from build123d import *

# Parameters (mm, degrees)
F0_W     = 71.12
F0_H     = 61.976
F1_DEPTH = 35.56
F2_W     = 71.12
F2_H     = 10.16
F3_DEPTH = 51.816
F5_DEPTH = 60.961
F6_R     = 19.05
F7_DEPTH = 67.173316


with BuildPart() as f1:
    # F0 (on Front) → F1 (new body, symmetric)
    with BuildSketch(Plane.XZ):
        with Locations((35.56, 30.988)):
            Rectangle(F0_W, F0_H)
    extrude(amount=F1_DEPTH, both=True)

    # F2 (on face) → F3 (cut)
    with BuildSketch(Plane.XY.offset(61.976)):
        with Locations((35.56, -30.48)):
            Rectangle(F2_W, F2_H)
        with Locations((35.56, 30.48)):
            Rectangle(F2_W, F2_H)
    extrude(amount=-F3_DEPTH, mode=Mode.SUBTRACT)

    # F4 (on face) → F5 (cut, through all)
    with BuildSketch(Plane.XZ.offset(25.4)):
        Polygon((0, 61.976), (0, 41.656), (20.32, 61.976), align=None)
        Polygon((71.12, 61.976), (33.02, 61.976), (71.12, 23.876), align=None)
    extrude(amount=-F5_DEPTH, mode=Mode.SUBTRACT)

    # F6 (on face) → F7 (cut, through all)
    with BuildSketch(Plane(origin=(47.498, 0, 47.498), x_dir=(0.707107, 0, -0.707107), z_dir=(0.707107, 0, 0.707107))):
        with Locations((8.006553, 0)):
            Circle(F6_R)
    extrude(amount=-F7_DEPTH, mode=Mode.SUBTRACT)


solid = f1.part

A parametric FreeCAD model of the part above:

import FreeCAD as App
import Part
import Sketcher
Q = App.Units.Quantity

doc = App.newDocument("Part")
params = doc.addObject("Spreadsheet::Sheet", "Params")
for row, (alias, value) in enumerate([
    ("sketch1_width", "2.8 in"),
    ("sketch1_height", "2.44 in"),
    ("pad1_length", "2.8 in"),
    ("sketch2_width", "2.8 in"),
    ("sketch2_height", "0.4 in"),
    ("pocket1_length", "2.04 in"),
    ("sketch3_width", "0.8 in"),
    ("sketch3_width2", "1.5 in"),
    ("sketch4_diameter", "1.5 in"),
], start=1):
    params.set(f"A{row}", alias)
    params.set(f"B{row}", "=" + value)
    params.setAlias(f"B{row}", alias)

body = doc.addObject("PartDesign::Body", "Body")

# Sketch on XZ plane
sketch1 = doc.addObject("Sketcher::SketchObject", "Sketch")
body.addObject(sketch1)
sketch1.AttachmentSupport = (doc.XZ_Plane, [""])
sketch1.MapMode = "FlatFace"
sketch1.addGeometry([
    Part.LineSegment(App.Vector(0, 61.976, 0), App.Vector(0, 0, 0)),
    Part.LineSegment(App.Vector(0, 0, 0), App.Vector(71.12, 0, 0)),
    Part.LineSegment(App.Vector(71.12, 0, 0), App.Vector(71.12, 61.976, 0)),
    Part.LineSegment(App.Vector(71.12, 61.976, 0), App.Vector(0, 61.976, 0)),
], False)
sketch1.addConstraint([
    Sketcher.Constraint("Coincident", 0, 2, 1, 1),
    Sketcher.Constraint("Coincident", 1, 2, 2, 1),
    Sketcher.Constraint("Coincident", 2, 2, 3, 1),
    Sketcher.Constraint("Coincident", 3, 2, 0, 1),
    Sketcher.Constraint("Vertical", 0),
    Sketcher.Constraint("Horizontal", 1),
    Sketcher.Constraint("Vertical", 2),
    Sketcher.Constraint("Horizontal", 3),
    Sketcher.Constraint("Coincident", 0, 2, -1, 1),
    Sketcher.Constraint("DistanceX", 1, 1, 1, 2, Q("2.8 in")),
    Sketcher.Constraint("DistanceY", 0, 2, 0, 1, Q("2.44 in")),
])
sketch1.setExpression("Constraints[9]", "Params.sketch1_width")
sketch1.setExpression("Constraints[10]", "Params.sketch1_height")
pad1 = doc.addObject("PartDesign::Pad", "Pad")
body.addObject(pad1)
pad1.Profile = sketch1
pad1.setExpression("Length", "Params.pad1_length")
pad1.Midplane = True

# Sketch on XY plane
sketch2 = doc.addObject("Sketcher::SketchObject", "Sketch001")
body.addObject(sketch2)
sketch2.AttachmentSupport = (doc.XY_Plane, [""])
sketch2.MapMode = "FlatFace"
sketch2.AttachmentOffset = App.Placement(App.Vector(0, 0, 2.44 * 25.4), App.Rotation())
sketch2.addGeometry([
    Part.LineSegment(App.Vector(0, -25.4, 0), App.Vector(0, -35.56, 0)),  # 0
    Part.LineSegment(App.Vector(0, -35.56, 0), App.Vector(71.12, -35.56, 0)),  # 1
    Part.LineSegment(App.Vector(71.12, -35.56, 0), App.Vector(71.12, -25.4, 0)),  # 2
    Part.LineSegment(App.Vector(71.12, -25.4, 0), App.Vector(0, -25.4, 0)),  # 3
    Part.LineSegment(App.Vector(0, 35.56, 0), App.Vector(0, 25.4, 0)),  # 4
    Part.LineSegment(App.Vector(0, 25.4, 0), App.Vector(71.12, 25.4, 0)),  # 5
    Part.LineSegment(App.Vector(71.12, 25.4, 0), App.Vector(71.12, 35.56, 0)),  # 6
    Part.LineSegment(App.Vector(71.12, 35.56, 0), App.Vector(0, 35.56, 0)),  # 7
], False)
sketch2.addConstraint([
    Sketcher.Constraint("Coincident", 0, 2, 1, 1),
    Sketcher.Constraint("Coincident", 1, 2, 2, 1),
    Sketcher.Constraint("Coincident", 2, 2, 3, 1),
    Sketcher.Constraint("Coincident", 3, 2, 0, 1),
    Sketcher.Constraint("Coincident", 4, 2, 5, 1),
    Sketcher.Constraint("Coincident", 5, 2, 6, 1),
    Sketcher.Constraint("Coincident", 6, 2, 7, 1),
    Sketcher.Constraint("Coincident", 7, 2, 4, 1),
    Sketcher.Constraint("Vertical", 0),
    Sketcher.Constraint("Horizontal", 1),
    Sketcher.Constraint("Vertical", 2),
    Sketcher.Constraint("Horizontal", 3),
    Sketcher.Constraint("Vertical", 4),
    Sketcher.Constraint("Horizontal", 5),
    Sketcher.Constraint("Vertical", 6),
    Sketcher.Constraint("Horizontal", 7),
    Sketcher.Constraint("Symmetric", 3, 2, 4, 2, -1, 1),
    Sketcher.Constraint("Symmetric", 1, 2, 6, 2, -1),
    Sketcher.Constraint("PointOnObject", 0, 2, -2),
    Sketcher.Constraint("DistanceX", 1, 1, 1, 2, Q("2.8 in")),
    Sketcher.Constraint("DistanceY", 0, 2, 0, 1, Q("0.4 in")),
    Sketcher.Constraint("DistanceY", 2, 2, -1, 1, Q("1 in")),
])
sketch2.setExpression("Constraints[19]", "Params.sketch2_width")
sketch2.setExpression("Constraints[20]", "Params.sketch2_height")
pocket1 = doc.addObject("PartDesign::Pocket", "Pocket")
body.addObject(pocket1)
pocket1.Profile = sketch2
pocket1.setExpression("Length", "Params.pocket1_length")

# Sketch on XZ plane
sketch3 = doc.addObject("Sketcher::SketchObject", "Sketch002")
body.addObject(sketch3)
sketch3.AttachmentSupport = (doc.XZ_Plane, [""])
sketch3.MapMode = "FlatFace"
sketch3.AttachmentOffset = App.Placement(App.Vector(0, 0, 1 * 25.4), App.Rotation())
sketch3.addGeometry([
    Part.LineSegment(App.Vector(0, 61.976, 0), App.Vector(0, 41.656, 0)),  # 0
    Part.LineSegment(App.Vector(0, 41.656, 0), App.Vector(20.32, 61.976, 0)),  # 1
    Part.LineSegment(App.Vector(20.32, 61.976, 0), App.Vector(0, 61.976, 0)),  # 2
    Part.LineSegment(App.Vector(71.12, 61.976, 0), App.Vector(33.02, 61.976, 0)),  # 3
    Part.LineSegment(App.Vector(33.02, 61.976, 0), App.Vector(71.12, 23.876, 0)),  # 4
    Part.LineSegment(App.Vector(71.12, 23.876, 0), App.Vector(71.12, 61.976, 0)),  # 5
], False)
sketch3.addConstraint([
    Sketcher.Constraint("Coincident", 0, 2, 1, 1),
    Sketcher.Constraint("Coincident", 1, 2, 2, 1),
    Sketcher.Constraint("Coincident", 2, 2, 0, 1),
    Sketcher.Constraint("Coincident", 3, 2, 4, 1),
    Sketcher.Constraint("Coincident", 4, 2, 5, 1),
    Sketcher.Constraint("Coincident", 5, 2, 3, 1),
    Sketcher.Constraint("Vertical", 0),
    Sketcher.Constraint("Horizontal", 2),
    Sketcher.Constraint("Horizontal", 3),
    Sketcher.Constraint("Vertical", 5),
    Sketcher.Constraint("PointOnObject", 0, 2, -2),
    Sketcher.Constraint("Perpendicular", 1, 4),
    Sketcher.Constraint("Horizontal", 2, 2, 3, 2),
    Sketcher.Constraint("Equal", 2, 0),
    Sketcher.Constraint("DistanceX", 2, 2, 2, 1, Q("0.8 in")),
    Sketcher.Constraint("DistanceX", 3, 2, 3, 1, Q("1.5 in")),
    Sketcher.Constraint("DistanceX", 1, 2, 4, 2, Q("2 in")),
    Sketcher.Constraint("DistanceY", -1, 1, 0, 2, Q("1.64 in")),
])
sketch3.setExpression("Constraints[14]", "Params.sketch3_width")
sketch3.setExpression("Constraints[15]", "Params.sketch3_width2")
pocket2 = doc.addObject("PartDesign::Pocket", "Pocket001")
body.addObject(pocket2)
pocket2.Profile = sketch3
pocket2.Type = "ThroughAll"

# Sketch on an angled plane
sketch4 = doc.addObject("Sketcher::SketchObject", "Sketch003")
body.addObject(sketch4)
sketch4.Placement = App.Placement(App.Vector(47.498, 0, 47.498), App.Rotation(App.Vector(0.707106781, 0, -0.707106781), App.Vector(0, 0.999999999, 0), App.Vector(0.707106781, 0, 0.707106781), "ZXY"))
sketch4.addGeometry(Part.Circle(App.Vector(8.006553, 0, 0), App.Vector(0, 0, 1), 19.05), False)
sketch4.addConstraint([
    Sketcher.Constraint("PointOnObject", 0, 3, -1),
    Sketcher.Constraint("Diameter", 0, Q("1.5 in")),
    Sketcher.Constraint("DistanceX", -1, 1, 0, 3, 8.006553),
])
sketch4.setExpression("Constraints[1]", "Params.sketch4_diameter")
pocket3 = doc.addObject("PartDesign::Pocket", "Pocket002")
body.addObject(pocket3)
pocket3.Profile = sketch4
pocket3.Type = "ThroughAll"

doc.recompute()
